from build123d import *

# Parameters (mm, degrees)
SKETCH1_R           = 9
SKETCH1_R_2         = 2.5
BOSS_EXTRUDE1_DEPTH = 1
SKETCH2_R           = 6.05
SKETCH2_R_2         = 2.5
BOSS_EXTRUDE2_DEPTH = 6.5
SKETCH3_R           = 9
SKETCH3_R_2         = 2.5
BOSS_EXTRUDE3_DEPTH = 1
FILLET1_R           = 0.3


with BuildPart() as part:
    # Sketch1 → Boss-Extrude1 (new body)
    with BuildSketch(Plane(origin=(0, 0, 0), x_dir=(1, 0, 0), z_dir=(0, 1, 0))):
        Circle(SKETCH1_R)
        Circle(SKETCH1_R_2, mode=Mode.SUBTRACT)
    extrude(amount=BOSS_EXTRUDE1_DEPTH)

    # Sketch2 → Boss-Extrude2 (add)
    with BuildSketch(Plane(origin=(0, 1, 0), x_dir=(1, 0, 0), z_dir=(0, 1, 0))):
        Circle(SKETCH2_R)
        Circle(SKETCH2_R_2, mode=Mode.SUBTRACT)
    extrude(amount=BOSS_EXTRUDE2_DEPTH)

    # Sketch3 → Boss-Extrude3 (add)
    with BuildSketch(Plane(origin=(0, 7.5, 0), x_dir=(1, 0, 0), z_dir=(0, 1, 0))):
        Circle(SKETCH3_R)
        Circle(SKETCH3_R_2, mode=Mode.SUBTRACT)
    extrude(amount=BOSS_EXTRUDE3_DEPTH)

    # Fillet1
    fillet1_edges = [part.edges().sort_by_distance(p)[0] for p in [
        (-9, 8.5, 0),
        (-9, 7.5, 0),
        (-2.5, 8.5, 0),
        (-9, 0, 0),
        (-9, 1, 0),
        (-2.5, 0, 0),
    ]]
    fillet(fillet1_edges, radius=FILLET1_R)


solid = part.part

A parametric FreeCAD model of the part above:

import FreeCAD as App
import Part
import Sketcher

V = App.Vector


def edges_at(feature, points):
    """Names of the edges that pass closest to the given points."""
    edges = feature.Shape.Edges
    near = lambda p: min(range(len(edges)), key=lambda i: edges[i].distToShape(Part.Vertex(*p))[0])
    return sorted({f"Edge{near(p) + 1}" for p in points})

doc = App.newDocument("Part")
body = doc.addObject("PartDesign::Body", "Body")

# Sketch on XZ plane
sketch1 = body.newObject("Sketcher::SketchObject", "Sketch")
sketch1.AttachmentSupport = (doc.getObject("XZ_Plane"), [""])
sketch1.MapMode = "FlatFace"
sketch1.addGeometry([
    Part.Circle(V(0, 0, 0), V(0, 0, 1), 9),
    Part.Circle(V(0, 0, 0), V(0, 0, 1), 2.5),
], False)
sketch1.addConstraint([
    Sketcher.Constraint("Coincident", 0, 3, -1, 1),
    Sketcher.Constraint("Coincident", 1, 3, -1, 1),
    Sketcher.Constraint("Diameter", 0, 18.0),
    Sketcher.Constraint("Diameter", 1, 5.0),
])
pad1 = body.newObject("PartDesign::Pad", "Pad")
pad1.Profile = sketch1
pad1.Length = 1
pad1.Reversed = True

# Sketch on XZ plane
sketch2 = body.newObject("Sketcher::SketchObject", "Sketch001")
sketch2.AttachmentSupport = (doc.getObject("XZ_Plane"), [""])
sketch2.MapMode = "FlatFace"
sketch2.AttachmentOffset = App.Placement(V(0, 0, -1), App.Rotation())
sketch2.addGeometry([
    Part.Circle(V(0, 0, 0), V(0, 0, 1), 6),
    Part.Circle(V(0, 0, 0), V(0, 0, 1), 2.5),
], False)
sketch2.addConstraint([
    Sketcher.Constraint("Coincident", 0, 3, -1, 1),
    Sketcher.Constraint("Coincident", 1, 3, -1, 1),
    Sketcher.Constraint("Diameter", 1, 5.0),
    Sketcher.Constraint("Diameter", 0, 12.1),
])
pad2 = body.newObject("PartDesign::Pad", "Pad001")
pad2.Profile = sketch2
pad2.Length = 6.5
pad2.Reversed = True

# Sketch on XZ plane
sketch3 = body.newObject("Sketcher::SketchObject", "Sketch002")
sketch3.AttachmentSupport = (doc.getObject("XZ_Plane"), [""])
sketch3.MapMode = "FlatFace"
sketch3.AttachmentOffset = App.Placement(V(0, 0, -7.5), App.Rotation())
sketch3.addGeometry([
    Part.Circle(V(0, 0, 0), V(0, 0, 1), 9),
    Part.Circle(V(0, 0, 0), V(0, 0, 1), 2.5),
], False)
sketch3.addConstraint([
    Sketcher.Constraint("Coincident", 0, 3, -1, 1),
    Sketcher.Constraint("Coincident", 1, 3, -1, 1),
    Sketcher.Constraint("Diameter", 0, 18.0),
    Sketcher.Constraint("Diameter", 1, 5.0),
])
pad3 = body.newObject("PartDesign::Pad", "Pad002")
pad3.Profile = sketch3
pad3.Length = 1
pad3.Reversed = True
doc.recompute()

fillet = body.newObject("PartDesign::Fillet", "Fillet")
fillet.Base = (pad3, edges_at(pad3, [
    (-9, 8.5, 0),
    (-9, 7.5, 0),
    (-2.5, 8.5, 0),
    (-9, 0, 0),
    (-9, 1, 0),
    (-2.5, 0, 0),
]))
fillet.Radius = 0.3

doc.recompute()
